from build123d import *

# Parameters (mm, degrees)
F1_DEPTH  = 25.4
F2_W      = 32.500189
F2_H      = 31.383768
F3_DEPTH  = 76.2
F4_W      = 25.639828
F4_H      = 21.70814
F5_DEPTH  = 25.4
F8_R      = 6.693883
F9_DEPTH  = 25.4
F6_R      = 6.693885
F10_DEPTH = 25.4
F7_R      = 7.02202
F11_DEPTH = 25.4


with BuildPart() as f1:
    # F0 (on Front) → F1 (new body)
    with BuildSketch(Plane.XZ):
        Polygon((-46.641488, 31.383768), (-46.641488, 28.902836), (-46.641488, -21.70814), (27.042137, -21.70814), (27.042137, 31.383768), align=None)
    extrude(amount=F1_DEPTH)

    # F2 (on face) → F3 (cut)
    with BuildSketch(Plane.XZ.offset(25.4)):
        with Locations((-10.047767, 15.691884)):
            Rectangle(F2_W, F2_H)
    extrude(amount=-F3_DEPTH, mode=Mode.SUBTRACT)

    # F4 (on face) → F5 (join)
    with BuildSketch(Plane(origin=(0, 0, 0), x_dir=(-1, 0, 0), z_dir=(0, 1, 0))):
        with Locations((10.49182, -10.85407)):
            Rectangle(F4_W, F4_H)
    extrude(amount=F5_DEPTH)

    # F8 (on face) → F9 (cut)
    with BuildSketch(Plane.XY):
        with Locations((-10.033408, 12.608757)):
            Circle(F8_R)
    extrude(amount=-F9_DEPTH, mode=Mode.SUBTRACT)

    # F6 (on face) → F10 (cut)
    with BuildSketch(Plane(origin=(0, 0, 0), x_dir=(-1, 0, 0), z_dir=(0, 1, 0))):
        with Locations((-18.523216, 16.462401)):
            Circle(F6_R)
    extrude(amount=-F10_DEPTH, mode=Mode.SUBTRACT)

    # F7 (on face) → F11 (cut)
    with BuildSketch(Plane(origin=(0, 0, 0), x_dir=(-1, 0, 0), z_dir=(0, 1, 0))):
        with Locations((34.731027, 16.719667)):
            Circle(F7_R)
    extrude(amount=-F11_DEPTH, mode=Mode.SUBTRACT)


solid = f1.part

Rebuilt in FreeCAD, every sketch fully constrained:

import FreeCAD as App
import Part
import Sketcher

V = App.Vector


def add_polygon(sketch, points):
    """Adds a closed chain of lines whose ends are joined by coincident constraints."""
    first, n = sketch.GeometryCount, len(points)
    for a, b in zip(points, points[1:] + points[:1]):
        sketch.addGeometry(Part.LineSegment(App.Vector(*a, 0), App.Vector(*b, 0)), False)
    for i in range(n):
        sketch.addConstraint(Sketcher.Constraint("Coincident", first + i, 2, first + (i + 1) % n, 1))

doc = App.newDocument("Part")
params = doc.addObject("Spreadsheet::Sheet", "Params")
for row, (alias, value) in enumerate([
    ("pad1_length", "1 in"),
    ("pocket1_length", "3 in"),
    ("pad2_length", "1 in"),
    ("pocket2_length", "1 in"),
    ("pocket3_length", "1 in"),
    ("pocket4_length", "1 in"),
], start=1):
    params.set(f"A{row}", alias)
    params.set(f"B{row}", "=" + value)
    params.setAlias(f"B{row}", alias)

body = doc.addObject("PartDesign::Body", "Body")

# Sketch on XZ plane
sketch1 = body.newObject("Sketcher::SketchObject", "Sketch")
sketch1.AttachmentSupport = (doc.getObject("XZ_Plane"), [""])
sketch1.MapMode = "FlatFace"
add_polygon(sketch1, [(-47, 31), (-47, -22), (27, -22), (27, 31)])  # lines 0-3
sketch1.addConstraint(Sketcher.Constraint("Vertical", 0))
sketch1.addConstraint(Sketcher.Constraint("Horizontal", 1))
sketch1.addConstraint(Sketcher.Constraint("Vertical", 2))
sketch1.addConstraint(Sketcher.Constraint("Horizontal", 3))
sketch1.addConstraint(Sketcher.Constraint("DistanceY", 0, 2, 0, 1, 53.091908))
sketch1.addConstraint(Sketcher.Constraint("DistanceX", 1, 1, 1, 2, 73.683625))
sketch1.addConstraint(Sketcher.Constraint("DistanceX", 0, 2, -1, 1, 46.641488))
sketch1.addConstraint(Sketcher.Constraint("DistanceY", 0, 2, -1, 1, 21.70814))
pad1 = body.newObject("PartDesign::Pad", "Pad")
pad1.Profile = sketch1
pad1.setExpression("Length", "Params.pad1_length")

# Sketch on XZ plane
sketch2 = body.newObject("Sketcher::SketchObject", "Sketch001")
sketch2.AttachmentSupport = (doc.getObject("XZ_Plane"), [""])
sketch2.MapMode = "FlatFace"
sketch2.AttachmentOffset = App.Placement(V(0, 0, 1 * 25.4), App.Rotation())
add_polygon(sketch2, [(-26, 31), (-26, 0), (6, 0), (6, 31)])  # lines 0-3
sketch2.addConstraint(Sketcher.Constraint("Vertical", 0))
sketch2.addConstraint(Sketcher.Constraint("Horizontal", 1))
sketch2.addConstraint(Sketcher.Constraint("Vertical", 2))
sketch2.addConstraint(Sketcher.Constraint("Horizontal", 3))
sketch2.addConstraint(Sketcher.Constraint("PointOnObject", 0, 2, -1))
sketch2.addConstraint(Sketcher.Constraint("DistanceX", 1, 1, 1, 2, 32.500189))
sketch2.addConstraint(Sketcher.Constraint("DistanceY", 0, 2, 0, 1, 31.383768))
sketch2.addConstraint(Sketcher.Constraint("DistanceX", 0, 2, -1, 1, 26.297861))
pocket1 = body.newObject("PartDesign::Pocket", "Pocket")
pocket1.Profile = sketch2
pocket1.setExpression("Length", "Params.pocket1_length")

# Sketch on XZ plane
sketch3 = body.newObject("Sketcher::SketchObject", "Sketch002")
sketch3.AttachmentSupport = (doc.getObject("XZ_Plane"), [""])
sketch3.MapMode = "FlatFace"
add_polygon(sketch3, [(2, 0), (2, -22), (-23, -22), (-23, 0)])  # lines 0-3
sketch3.addConstraint(Sketcher.Constraint("Vertical", 0))
sketch3.addConstraint(Sketcher.Constraint("Horizontal", 1))
sketch3.addConstraint(Sketcher.Constraint("Vertical", 2))
sketch3.addConstraint(Sketcher.Constraint("Horizontal", 3))
sketch3.addConstraint(Sketcher.Constraint("PointOnObject", 2, 2, -1))
sketch3.addConstraint(Sketcher.Constraint("DistanceX", 1, 2, 1, 1, 25.639828))
sketch3.addConstraint(Sketcher.Constraint("DistanceY", 0, 2, 0, 1, 21.70814))
sketch3.addConstraint(Sketcher.Constraint("DistanceX", -1, 1, 0, 2, 2.328094))
pad2 = body.newObject("PartDesign::Pad", "Pad001")
pad2.Profile = sketch3
pad2.setExpression("Length", "Params.pad2_length")
pad2.Reversed = True

# Sketch on XY plane
sketch4 = body.newObject("Sketcher::SketchObject", "Sketch003")
sketch4.AttachmentSupport = (doc.getObject("XY_Plane"), [""])
sketch4.MapMode = "FlatFace"
sketch4.addGeometry(Part.Circle(V(-10, 13, 0), V(0, 0, 1), 7), False)
sketch4.addConstraint(Sketcher.Constraint("Diameter", 0, 13.387766))
sketch4.addConstraint(Sketcher.Constraint("DistanceX", 0, 3, -1, 1, 10.033408))
sketch4.addConstraint(Sketcher.Constraint("DistanceY", -1, 1, 0, 3, 12.608757))
pocket2 = body.newObject("PartDesign::Pocket", "Pocket001")
pocket2.Profile = sketch4
pocket2.setExpression("Length", "Params.pocket2_length")

# Sketch on XZ plane
sketch5 = body.newObject("Sketcher::SketchObject", "Sketch004")
sketch5.AttachmentSupport = (doc.getObject("XZ_Plane"), [""])
sketch5.MapMode = "FlatFace"
sketch5.addGeometry(Part.Circle(V(19, 16, 0), V(0, 0, 1), 7), False)
sketch5.addConstraint(Sketcher.Constraint("Diameter", 0, 13.38777))
sketch5.addConstraint(Sketcher.Constraint("DistanceY", -1, 1, 0, 3, 16.462401))
sketch5.addConstraint(Sketcher.Constraint("DistanceX", -1, 1, 0, 3, 18.523216))
pocket3 = body.newObject("PartDesign::Pocket", "Pocket002")
pocket3.Profile = sketch5
pocket3.setExpression("Length", "Params.pocket3_length")
pocket3.Reversed = True

# Sketch on XZ plane
sketch6 = body.newObject("Sketcher::SketchObject", "Sketch005")
sketch6.AttachmentSupport = (doc.getObject("XZ_Plane"), [""])
sketch6.MapMode = "FlatFace"
sketch6.addGeometry(Part.Circle(V(-35, 17, 0), V(0, 0, 1), 7), False)
sketch6.addConstraint(Sketcher.Constraint("Diameter", 0, 14.04404))
sketch6.addConstraint(Sketcher.Constraint("DistanceX", 0, 3, -1, 1, 34.731027))
sketch6.addConstraint(Sketcher.Constraint("DistanceY", -1, 1, 0, 3, 16.719667))
pocket4 = body.newObject("PartDesign::Pocket", "Pocket003")
pocket4.Profile = sketch6
pocket4.setExpression("Length", "Params.pocket4_length")
pocket4.Reversed = True

doc.recompute()
